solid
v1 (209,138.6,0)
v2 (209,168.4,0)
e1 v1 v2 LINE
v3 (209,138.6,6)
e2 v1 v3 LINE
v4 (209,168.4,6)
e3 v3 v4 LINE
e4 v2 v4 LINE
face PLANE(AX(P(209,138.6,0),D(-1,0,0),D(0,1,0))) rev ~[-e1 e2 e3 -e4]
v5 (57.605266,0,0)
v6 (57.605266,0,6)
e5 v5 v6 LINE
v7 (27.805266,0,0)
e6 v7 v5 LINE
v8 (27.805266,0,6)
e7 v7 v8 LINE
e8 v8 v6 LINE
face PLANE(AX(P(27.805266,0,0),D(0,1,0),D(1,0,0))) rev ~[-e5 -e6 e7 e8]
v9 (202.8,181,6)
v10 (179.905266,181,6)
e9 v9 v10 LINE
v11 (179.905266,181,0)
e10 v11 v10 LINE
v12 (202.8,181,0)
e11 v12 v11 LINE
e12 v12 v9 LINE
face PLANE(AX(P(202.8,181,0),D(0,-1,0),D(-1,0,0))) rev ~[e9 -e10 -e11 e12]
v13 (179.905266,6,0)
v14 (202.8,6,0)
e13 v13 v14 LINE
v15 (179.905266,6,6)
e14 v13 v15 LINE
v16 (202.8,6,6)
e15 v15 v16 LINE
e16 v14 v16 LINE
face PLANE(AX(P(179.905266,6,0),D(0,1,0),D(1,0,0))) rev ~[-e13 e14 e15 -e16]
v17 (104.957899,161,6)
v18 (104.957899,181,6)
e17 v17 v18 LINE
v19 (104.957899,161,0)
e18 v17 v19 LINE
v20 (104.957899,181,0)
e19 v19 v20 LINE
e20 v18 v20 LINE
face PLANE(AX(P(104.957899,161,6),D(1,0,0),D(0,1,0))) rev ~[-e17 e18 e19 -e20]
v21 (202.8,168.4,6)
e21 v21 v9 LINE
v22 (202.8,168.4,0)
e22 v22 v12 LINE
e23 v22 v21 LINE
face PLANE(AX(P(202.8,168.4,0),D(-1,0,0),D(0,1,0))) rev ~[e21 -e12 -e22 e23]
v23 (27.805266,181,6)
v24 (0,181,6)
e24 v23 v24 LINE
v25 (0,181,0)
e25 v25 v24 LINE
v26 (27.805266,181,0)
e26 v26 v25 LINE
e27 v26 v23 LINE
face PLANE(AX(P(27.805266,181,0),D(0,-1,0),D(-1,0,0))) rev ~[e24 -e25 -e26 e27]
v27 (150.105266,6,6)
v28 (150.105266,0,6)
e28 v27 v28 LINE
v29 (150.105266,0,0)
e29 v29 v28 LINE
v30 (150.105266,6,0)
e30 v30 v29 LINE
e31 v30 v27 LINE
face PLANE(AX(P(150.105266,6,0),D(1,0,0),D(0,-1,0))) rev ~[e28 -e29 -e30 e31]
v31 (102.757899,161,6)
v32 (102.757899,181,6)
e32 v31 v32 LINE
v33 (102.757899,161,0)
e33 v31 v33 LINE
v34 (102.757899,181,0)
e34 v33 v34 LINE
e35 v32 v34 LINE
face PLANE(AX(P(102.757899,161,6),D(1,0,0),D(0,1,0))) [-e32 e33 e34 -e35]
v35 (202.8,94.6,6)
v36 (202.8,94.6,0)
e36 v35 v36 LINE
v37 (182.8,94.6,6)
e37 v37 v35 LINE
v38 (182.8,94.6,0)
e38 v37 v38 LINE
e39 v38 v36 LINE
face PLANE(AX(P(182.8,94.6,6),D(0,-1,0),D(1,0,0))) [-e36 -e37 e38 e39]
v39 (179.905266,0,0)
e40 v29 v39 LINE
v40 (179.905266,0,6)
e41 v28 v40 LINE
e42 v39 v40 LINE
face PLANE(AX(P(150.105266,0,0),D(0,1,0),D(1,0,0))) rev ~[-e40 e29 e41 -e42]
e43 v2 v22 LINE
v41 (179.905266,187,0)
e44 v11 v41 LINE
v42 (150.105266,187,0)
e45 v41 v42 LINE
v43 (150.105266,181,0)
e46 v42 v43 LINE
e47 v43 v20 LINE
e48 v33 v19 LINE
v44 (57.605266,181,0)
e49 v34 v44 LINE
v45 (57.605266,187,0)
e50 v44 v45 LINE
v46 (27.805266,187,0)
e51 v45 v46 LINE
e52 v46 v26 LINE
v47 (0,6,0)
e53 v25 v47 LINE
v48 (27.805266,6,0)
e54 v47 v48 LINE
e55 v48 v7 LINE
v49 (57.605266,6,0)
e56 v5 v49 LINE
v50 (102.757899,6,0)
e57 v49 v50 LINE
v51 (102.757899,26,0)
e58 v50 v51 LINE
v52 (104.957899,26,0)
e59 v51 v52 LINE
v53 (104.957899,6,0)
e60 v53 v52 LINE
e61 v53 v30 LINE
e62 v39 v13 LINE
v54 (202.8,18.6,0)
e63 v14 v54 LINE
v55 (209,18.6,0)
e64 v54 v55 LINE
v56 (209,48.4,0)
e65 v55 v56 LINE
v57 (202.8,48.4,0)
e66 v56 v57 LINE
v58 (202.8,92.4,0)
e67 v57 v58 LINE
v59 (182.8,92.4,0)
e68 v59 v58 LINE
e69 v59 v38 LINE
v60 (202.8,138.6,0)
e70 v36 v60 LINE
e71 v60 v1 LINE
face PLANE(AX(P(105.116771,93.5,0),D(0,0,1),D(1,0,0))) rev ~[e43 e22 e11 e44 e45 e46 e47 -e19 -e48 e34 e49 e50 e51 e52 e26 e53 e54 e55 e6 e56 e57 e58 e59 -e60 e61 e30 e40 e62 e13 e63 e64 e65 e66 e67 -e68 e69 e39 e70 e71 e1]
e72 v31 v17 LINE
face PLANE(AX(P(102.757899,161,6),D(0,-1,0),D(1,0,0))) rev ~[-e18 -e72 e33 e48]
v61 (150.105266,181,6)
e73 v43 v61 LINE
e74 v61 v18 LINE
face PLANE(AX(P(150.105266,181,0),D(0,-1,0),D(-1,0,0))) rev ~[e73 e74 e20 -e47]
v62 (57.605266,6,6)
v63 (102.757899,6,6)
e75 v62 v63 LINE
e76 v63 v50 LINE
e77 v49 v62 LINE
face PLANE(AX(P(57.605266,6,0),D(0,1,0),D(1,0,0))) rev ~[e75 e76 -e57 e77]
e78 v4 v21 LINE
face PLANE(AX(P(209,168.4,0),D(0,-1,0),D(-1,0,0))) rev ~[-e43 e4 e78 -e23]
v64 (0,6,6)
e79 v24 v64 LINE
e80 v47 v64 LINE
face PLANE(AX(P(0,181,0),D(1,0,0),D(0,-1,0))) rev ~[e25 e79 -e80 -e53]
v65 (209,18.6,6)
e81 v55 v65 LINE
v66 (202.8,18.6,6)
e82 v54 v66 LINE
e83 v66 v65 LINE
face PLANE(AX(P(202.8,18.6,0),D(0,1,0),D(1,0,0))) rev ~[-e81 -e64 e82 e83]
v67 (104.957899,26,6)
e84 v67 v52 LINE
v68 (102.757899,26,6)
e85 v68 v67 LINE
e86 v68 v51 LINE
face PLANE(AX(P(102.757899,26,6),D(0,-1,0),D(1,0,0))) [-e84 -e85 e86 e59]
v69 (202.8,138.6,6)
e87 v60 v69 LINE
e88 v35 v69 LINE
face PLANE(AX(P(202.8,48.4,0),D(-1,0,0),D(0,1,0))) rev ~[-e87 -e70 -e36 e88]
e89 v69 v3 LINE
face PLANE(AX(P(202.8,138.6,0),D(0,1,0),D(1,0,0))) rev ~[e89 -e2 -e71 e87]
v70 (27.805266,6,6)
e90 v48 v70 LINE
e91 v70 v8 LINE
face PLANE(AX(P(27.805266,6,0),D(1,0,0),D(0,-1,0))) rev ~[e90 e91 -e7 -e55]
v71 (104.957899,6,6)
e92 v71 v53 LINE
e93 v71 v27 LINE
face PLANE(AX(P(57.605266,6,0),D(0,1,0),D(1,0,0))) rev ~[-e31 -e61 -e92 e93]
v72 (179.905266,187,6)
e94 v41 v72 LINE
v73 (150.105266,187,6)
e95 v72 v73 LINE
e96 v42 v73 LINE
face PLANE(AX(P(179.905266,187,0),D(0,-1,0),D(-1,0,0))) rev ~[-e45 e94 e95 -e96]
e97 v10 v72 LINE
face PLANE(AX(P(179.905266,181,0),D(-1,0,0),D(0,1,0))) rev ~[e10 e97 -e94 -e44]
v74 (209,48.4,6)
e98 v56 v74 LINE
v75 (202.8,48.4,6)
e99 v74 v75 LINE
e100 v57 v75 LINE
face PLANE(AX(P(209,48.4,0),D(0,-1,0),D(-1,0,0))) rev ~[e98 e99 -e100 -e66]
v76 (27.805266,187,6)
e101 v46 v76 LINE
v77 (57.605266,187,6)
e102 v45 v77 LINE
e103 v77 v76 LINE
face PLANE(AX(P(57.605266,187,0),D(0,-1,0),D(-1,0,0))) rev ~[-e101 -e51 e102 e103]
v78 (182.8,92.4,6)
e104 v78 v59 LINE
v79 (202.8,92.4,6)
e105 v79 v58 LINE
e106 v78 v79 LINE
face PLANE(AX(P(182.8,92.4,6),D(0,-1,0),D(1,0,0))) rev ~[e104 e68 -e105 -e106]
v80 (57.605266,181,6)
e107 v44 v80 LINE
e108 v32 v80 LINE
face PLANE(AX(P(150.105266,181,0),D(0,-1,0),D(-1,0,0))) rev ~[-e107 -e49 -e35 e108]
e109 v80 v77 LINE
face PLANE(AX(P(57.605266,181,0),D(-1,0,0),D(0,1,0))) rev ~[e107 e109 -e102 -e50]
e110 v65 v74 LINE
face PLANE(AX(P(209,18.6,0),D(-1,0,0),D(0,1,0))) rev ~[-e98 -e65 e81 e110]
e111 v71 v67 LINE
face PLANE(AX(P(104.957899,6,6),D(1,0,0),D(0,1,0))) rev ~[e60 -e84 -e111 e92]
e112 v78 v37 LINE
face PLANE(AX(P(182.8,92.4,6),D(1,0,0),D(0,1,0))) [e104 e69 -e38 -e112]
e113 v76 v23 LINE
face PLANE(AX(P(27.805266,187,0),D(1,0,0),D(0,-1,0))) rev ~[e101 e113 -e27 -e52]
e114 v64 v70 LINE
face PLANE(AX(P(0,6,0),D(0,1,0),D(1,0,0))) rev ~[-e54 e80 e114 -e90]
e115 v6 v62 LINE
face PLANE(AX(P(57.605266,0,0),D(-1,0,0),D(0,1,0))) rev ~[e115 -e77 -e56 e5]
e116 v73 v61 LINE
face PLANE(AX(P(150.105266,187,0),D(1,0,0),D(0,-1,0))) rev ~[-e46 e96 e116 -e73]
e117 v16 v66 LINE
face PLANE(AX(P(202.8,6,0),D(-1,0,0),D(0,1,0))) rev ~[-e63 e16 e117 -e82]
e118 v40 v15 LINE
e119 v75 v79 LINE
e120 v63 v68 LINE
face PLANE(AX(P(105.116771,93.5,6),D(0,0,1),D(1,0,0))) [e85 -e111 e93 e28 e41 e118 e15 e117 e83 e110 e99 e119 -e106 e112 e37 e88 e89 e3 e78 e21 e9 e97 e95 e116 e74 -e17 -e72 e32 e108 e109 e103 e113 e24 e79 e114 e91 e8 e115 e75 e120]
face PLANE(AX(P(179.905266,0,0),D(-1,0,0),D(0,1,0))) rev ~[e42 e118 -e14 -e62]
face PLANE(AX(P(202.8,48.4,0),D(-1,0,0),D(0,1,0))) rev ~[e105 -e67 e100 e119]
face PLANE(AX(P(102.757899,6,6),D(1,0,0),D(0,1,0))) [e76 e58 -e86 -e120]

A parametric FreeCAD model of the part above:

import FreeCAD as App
import Part
import Sketcher
Q = App.Units.Quantity


def add_polygon(sketch, points):
    """Adds a closed chain of lines whose ends are joined by coincident constraints."""
    first, n = sketch.GeometryCount, len(points)
    for a, b in zip(points, points[1:] + points[:1]):
        sketch.addGeometry(Part.LineSegment(App.Vector(*a, 0), App.Vector(*b, 0)), False)
    for i in range(n):
        sketch.addConstraint(Sketcher.Constraint("Coincident", first + i, 2, first + (i + 1) % n, 1))

doc = App.newDocument("Part")
params = doc.addObject("Spreadsheet::Sheet", "Params")
for row, (alias, value) in enumerate([
    ("sketch1_height", "6 mm"),
    ("sketch1_height2", "175 mm"),
    ("sketch1_width", "29.8 mm"),
    ("sketch1_width2", "6.2 mm"),
    ("sketch1_width3", "92.5 mm"),
    ("pad1_length", "6 mm"),
    ("sketch2_width", "20 mm"),
    ("sketch2_width2", "2.2 mm"),
    ("pocket1_length", "6 mm"),
], start=1):
    params.set(f"A{row}", alias)
    params.set(f"B{row}", "=" + value)
    params.setAlias(f"B{row}", alias)

body = doc.addObject("PartDesign::Body", "Body")

sketch1 = body.newObject("Sketcher::SketchObject", "Sketch")
sketch1.AttachmentSupport = (doc.getObject("XY_Plane"), [""])
sketch1.MapMode = "FlatFace"
add_polygon(sketch1, [(150, 0), (180, 0), (180, 6), (203, 6), (203, 19), (209, 19), (209, 48), (203, 48), (203, 139), (209, 139), (209, 168), (203, 168), (203, 181), (180, 181), (180, 187), (150, 187), (150, 181), (58, 181), (58, 187), (28, 187), (28, 181), (0, 181), (0, 6), (28, 6), (28, 0), (58, 0), (58, 6), (150, 6)])
sketch1.addConstraint([
    Sketcher.Constraint("Horizontal", 0),
    Sketcher.Constraint("Vertical", 1),
    Sketcher.Constraint("Horizontal", 2),
    Sketcher.Constraint("Vertical", 3),
    Sketcher.Constraint("Horizontal", 4),
    Sketcher.Constraint("Vertical", 5),
    Sketcher.Constraint("Horizontal", 6),
    Sketcher.Constraint("Vertical", 7),
    Sketcher.Constraint("Horizontal", 8),
    Sketcher.Constraint("Vertical", 9),
    Sketcher.Constraint("Horizontal", 10),
    Sketcher.Constraint("Vertical", 11),
    Sketcher.Constraint("Horizontal", 12),
    Sketcher.Constraint("Vertical", 13),
    Sketcher.Constraint("Horizontal", 14),
    Sketcher.Constraint("Vertical", 15),
    Sketcher.Constraint("Horizontal", 16),
    Sketcher.Constraint("Vertical", 17),
    Sketcher.Constraint("Horizontal", 18),
    Sketcher.Constraint("Vertical", 19),
    Sketcher.Constraint("Horizontal", 20),
    Sketcher.Constraint("Vertical", 21),
    Sketcher.Constraint("Horizontal", 22),
    Sketcher.Constraint("Vertical", 23),
    Sketcher.Constraint("Horizontal", 24),
    Sketcher.Constraint("Vertical", 25),
    Sketcher.Constraint("Horizontal", 26),
    Sketcher.Constraint("Vertical", 27),
    Sketcher.Constraint("PointOnObject", 0, 2, -1),
    Sketcher.Constraint("PointOnObject", 20, 2, -2),
    Sketcher.Constraint("PointOnObject", 23, 2, -1),
    Sketcher.Constraint("Horizontal", 12, 2, 15, 2),
    Sketcher.Constraint("Horizontal", 14, 2, 17, 2),
    Sketcher.Constraint("Horizontal", 16, 2, 19, 2),
    Sketcher.Constraint("Horizontal", 2, 2, 21, 2),
    Sketcher.Constraint("Horizontal", 22, 2, 25, 2),
    Sketcher.Constraint("Vertical", 3, 2, 6, 2),
    Sketcher.Constraint("Vertical", 5, 2, 8, 2),
    Sketcher.Constraint("Vertical", 7, 2, 10, 2),
    Sketcher.Constraint("Vertical", 1, 2, 12, 2),
    Sketcher.Constraint("Vertical", 19, 2, 22, 2),
    Sketcher.Constraint("Vertical", 17, 2, 24, 2),
    Sketcher.Constraint("Vertical", 15, 2, 26, 2),
    Sketcher.Constraint("Equal", 14, 18),
    Sketcher.Constraint("Equal", 24, 5),
    Sketcher.Constraint("Equal", 5, 9),
    Sketcher.Constraint("Equal", 3, 11),
    Sketcher.Constraint("Equal", 1, 13),
    Sketcher.Constraint("DistanceY", 1, 1, 1, 2, Q("6 mm")),
    Sketcher.Constraint("DistanceY", 21, 2, 21, 1, Q("175 mm")),
    Sketcher.Constraint("DistanceX", 0, 1, 0, 2, Q("29.8 mm")),
    Sketcher.Constraint("DistanceX", 4, 1, 4, 2, Q("6.2 mm")),
    Sketcher.Constraint("DistanceX", 16, 2, 16, 1, Q("92.5 mm")),
    Sketcher.Constraint("DistanceY", 3, 1, 3, 2, Q("12.6 mm")),
    Sketcher.Constraint("DistanceX", -1, 1, 4, 2, Q("209 mm")),
    Sketcher.Constraint("DistanceX", 2, 1, 2, 2, Q("22.894734 mm")),
])
sketch1.setExpression("Constraints[76]", "Params.sketch1_height")
sketch1.setExpression("Constraints[77]", "Params.sketch1_height2")
sketch1.setExpression("Constraints[78]", "Params.sketch1_width")
sketch1.setExpression("Constraints[79]", "Params.sketch1_width2")
sketch1.setExpression("Constraints[80]", "Params.sketch1_width3")
pad1 = body.newObject("PartDesign::Pad", "Pad")
pad1.Profile = sketch1
pad1.setExpression("Length", "Params.pad1_length")

sketch2 = body.newObject("Sketcher::SketchObject", "Sketch001")
sketch2.AttachmentSupport = (doc.getObject("XY_Plane"), [""])
sketch2.MapMode = "FlatFace"
sketch2.AttachmentOffset = App.Placement(App.Vector(0, 0, 6), App.Rotation())
add_polygon(sketch2, [(102.8, 181), (102.8, 161), (105, 161), (105, 181)])
add_polygon(sketch2, [(182.8, 94.6), (182.8, 92.4), (202.8, 92.4), (202.8, 94.6)])
add_polygon(sketch2, [(102.8, 26), (102.8, 6), (105, 6), (105, 26)])
sketch2.addConstraint([
    Sketcher.Constraint("Vertical", 0),
    Sketcher.Constraint("Horizontal", 1),
    Sketcher.Constraint("Vertical", 2),
    Sketcher.Constraint("Horizontal", 3),
    Sketcher.Constraint("Vertical", 4),
    Sketcher.Constraint("Horizontal", 5),
    Sketcher.Constraint("Vertical", 6),
    Sketcher.Constraint("Horizontal", 7),
    Sketcher.Constraint("Vertical", 8),
    Sketcher.Constraint("Horizontal", 9),
    Sketcher.Constraint("Vertical", 10),
    Sketcher.Constraint("Horizontal", 11),
    Sketcher.Constraint("Vertical", 3, 2, 8, 2),
    Sketcher.Constraint("Vertical", 2, 2, 9, 2),
    Sketcher.Constraint("Equal", 7, 0),
    Sketcher.Constraint("Equal", 11, 4),
    Sketcher.Constraint("Equal", 2, 8),
    Sketcher.Constraint("DistanceX", 5, 1, 5, 2, Q("20 mm")),
    Sketcher.Constraint("DistanceX", 1, 1, 1, 2, Q("2.2 mm")),
    Sketcher.Constraint("DistanceY", -1, 1, 0, 2, Q("161 mm")),
    Sketcher.Constraint("DistanceY", -1, 1, 8, 2, Q("6 mm")),
    Sketcher.Constraint("DistanceX", -1, 1, 4, 2, Q("182.8 mm")),
    Sketcher.Constraint("DistanceY", -1, 1, 4, 2, Q("92.4 mm")),
    Sketcher.Constraint("DistanceX", -1, 1, 0, 2, Q("102.757899 mm")),
])
sketch2.setExpression("Constraints[29]", "Params.sketch2_width")
sketch2.setExpression("Constraints[30]", "Params.sketch2_width2")
pocket1 = body.newObject("PartDesign::Pocket", "Pocket")
pocket1.Profile = sketch2
pocket1.setExpression("Length", "Params.pocket1_length")

doc.recompute()
